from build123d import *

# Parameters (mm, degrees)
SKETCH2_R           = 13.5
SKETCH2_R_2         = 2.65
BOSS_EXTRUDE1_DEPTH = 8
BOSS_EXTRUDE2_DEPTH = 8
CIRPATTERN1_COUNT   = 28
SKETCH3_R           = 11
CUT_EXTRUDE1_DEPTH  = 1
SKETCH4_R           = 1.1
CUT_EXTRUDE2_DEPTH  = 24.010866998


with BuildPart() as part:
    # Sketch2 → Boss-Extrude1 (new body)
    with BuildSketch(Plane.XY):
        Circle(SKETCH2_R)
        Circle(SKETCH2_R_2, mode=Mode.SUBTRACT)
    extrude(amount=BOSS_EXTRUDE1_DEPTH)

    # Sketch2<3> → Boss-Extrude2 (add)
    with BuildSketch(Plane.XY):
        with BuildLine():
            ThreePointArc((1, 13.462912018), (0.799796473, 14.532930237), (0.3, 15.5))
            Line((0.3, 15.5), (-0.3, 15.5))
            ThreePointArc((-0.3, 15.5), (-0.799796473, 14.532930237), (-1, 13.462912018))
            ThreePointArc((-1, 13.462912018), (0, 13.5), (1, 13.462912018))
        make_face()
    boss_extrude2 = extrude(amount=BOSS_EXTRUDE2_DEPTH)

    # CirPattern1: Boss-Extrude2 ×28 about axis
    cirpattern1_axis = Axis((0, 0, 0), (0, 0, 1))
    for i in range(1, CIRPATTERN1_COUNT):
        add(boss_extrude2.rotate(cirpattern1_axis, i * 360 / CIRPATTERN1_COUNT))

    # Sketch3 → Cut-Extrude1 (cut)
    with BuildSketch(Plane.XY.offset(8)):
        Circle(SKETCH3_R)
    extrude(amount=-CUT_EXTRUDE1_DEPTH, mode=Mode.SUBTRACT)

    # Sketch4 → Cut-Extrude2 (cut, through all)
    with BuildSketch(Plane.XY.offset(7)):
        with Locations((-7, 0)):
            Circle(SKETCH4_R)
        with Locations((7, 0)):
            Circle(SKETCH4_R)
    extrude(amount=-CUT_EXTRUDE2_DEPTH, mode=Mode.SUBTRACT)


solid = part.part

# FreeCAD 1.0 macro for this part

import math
import FreeCAD as App
import Part
import Sketcher
from FreeCAD import Vector

doc = App.newDocument("Part")
params = doc.addObject("Spreadsheet::Sheet", "Params")
for row, (alias, value) in enumerate([
    ("sketch1_diameter", "27 mm"),
    ("sketch1_diameter2", "5.3 mm"),
    ("pad1_length", "8 mm"),
    ("sketch2_radius", "13.5 mm"),
    ("sketch2_width", "0.6 mm"),
    ("pad2_length", "8 mm"),
    ("sketch3_diameter", "22 mm"),
    ("pocket1_length", "1 mm"),
    ("sketch4_diameter", "2.2 mm"),
], start=1):
    params.set(f"A{row}", alias)
    params.set(f"B{row}", "=" + value)
    params.setAlias(f"B{row}", alias)

body = doc.addObject("PartDesign::Body", "Body")

# Sketch on XY plane
sketch1 = doc.addObject("Sketcher::SketchObject", "Sketch")
body.addObject(sketch1)
sketch1.AttachmentSupport = (doc.XY_Plane, [""])
sketch1.MapMode = "FlatFace"
sketch1.addGeometry([
    Part.Circle(Vector(0, 0, 0), Vector(0, 0, 1), 13.5),
    Part.Circle(Vector(0, 0, 0), Vector(0, 0, 1), 2.65),
], False)
sketch1.addConstraint([
    Sketcher.Constraint("Coincident", 0, 3, -1, 1),
    Sketcher.Constraint("Coincident", 1, 3, -1, 1),
    Sketcher.Constraint("Diameter", 0, 27.0),
    Sketcher.Constraint("Diameter", 1, 5.3),
])
sketch1.setExpression("Constraints[2]", "Params.sketch1_diameter")
sketch1.setExpression("Constraints[3]", "Params.sketch1_diameter2")
pad1 = doc.addObject("PartDesign::Pad", "Pad")
body.addObject(pad1)
pad1.Profile = sketch1
pad1.setExpression("Length", "Params.pad1_length")

# Sketch on XY plane
sketch2 = doc.addObject("Sketcher::SketchObject", "Sketch001")
body.addObject(sketch2)
sketch2.AttachmentSupport = (doc.XY_Plane, [""])
sketch2.MapMode = "FlatFace"
sketch2.addGeometry([
    Part.ArcOfCircle(Part.Circle(Vector(-2.737906, 13.317277, 0), Vector(0, 0, 1), 3.740742), math.radians(2.231206), math.radians(35.697083)),
    Part.LineSegment(Vector(0.3, 15.5, 0), Vector(-0.3, 15.5, 0)),
    Part.ArcOfCircle(Part.Circle(Vector(2.737906, 13.317277, 0), Vector(0, 0, 1), 3.740742), math.radians(144.302917), math.radians(177.768794)),
    Part.ArcOfCircle(Part.Circle(Vector(0, 0, 0), Vector(0, 0, 1), 13.5), math.radians(85.751977), math.radians(94.248023)),
], False)
sketch2.addConstraint([
    Sketcher.Constraint("Coincident", 0, 2, 1, 1),
    Sketcher.Constraint("Coincident", 1, 2, 2, 1),
    Sketcher.Constraint("Coincident", 2, 2, 3, 2),
    Sketcher.Constraint("Coincident", 3, 1, 0, 1),
    Sketcher.Constraint("Horizontal", 1),
    Sketcher.Constraint("Coincident", 3, 3, -1, 1),
    Sketcher.Constraint("Equal", 0, 2),
    Sketcher.Constraint("Symmetric", 0, 3, 2, 3, -2),
    Sketcher.Constraint("Radius", 3, 13.5),
    Sketcher.Constraint("DistanceX", 1, 2, 1, 1, 0.6),
    Sketcher.Constraint("DistanceX", 2, 2, -1, 1, 1.0),
    Sketcher.Constraint("DistanceY", -1, 1, 0, 2, 15.5),
    Sketcher.Constraint("Radius", 0, 3.740742),
])
sketch2.setExpression("Constraints[8]", "Params.sketch2_radius")
sketch2.setExpression("Constraints[9]", "Params.sketch2_width")
pad2 = doc.addObject("PartDesign::Pad", "Pad001")
body.addObject(pad2)
pad2.Profile = sketch2
pad2.setExpression("Length", "Params.pad2_length")
doc.recompute()

polarpattern = doc.addObject("PartDesign::PolarPattern", "PolarPattern")
body.addObject(polarpattern)
polarpattern.Originals = [pad2]
polarpattern.Axis = (doc.Z_Axis, [""])
polarpattern.Angle = 360
polarpattern.Occurrences = 28
body.Tip = polarpattern

# Sketch on XY plane
sketch3 = doc.addObject("Sketcher::SketchObject", "Sketch002")
body.addObject(sketch3)
sketch3.AttachmentSupport = (doc.XY_Plane, [""])
sketch3.MapMode = "FlatFace"
sketch3.AttachmentOffset = App.Placement(Vector(0, 0, 8), App.Rotation())
sketch3.addGeometry(Part.Circle(Vector(0, 0, 0), Vector(0, 0, 1), 11), False)
sketch3.addConstraint([
    Sketcher.Constraint("Coincident", 0, 3, -1, 1),
    Sketcher.Constraint("Diameter", 0, 22.0),
])
sketch3.setExpression("Constraints[1]", "Params.sketch3_diameter")
pocket1 = doc.addObject("PartDesign::Pocket", "Pocket")
body.addObject(pocket1)
pocket1.Profile = sketch3
pocket1.setExpression("Length", "Params.pocket1_length")

# Sketch on XY plane
sketch4 = doc.addObject("Sketcher::SketchObject", "Sketch003")
body.addObject(sketch4)
sketch4.AttachmentSupport = (doc.XY_Plane, [""])
sketch4.MapMode = "FlatFace"
sketch4.AttachmentOffset = App.Placement(Vector(0, 0, 7), App.Rotation())
sketch4.addGeometry([
    Part.Circle(Vector(-7, 0, 0), Vector(0, 0, 1), 1.1),
    Part.Circle(Vector(7, 0, 0), Vector(0, 0, 1), 1.1),
], False)
sketch4.addConstraint([
    Sketcher.Constraint("Equal", 0, 1),
    Sketcher.Constraint("Symmetric", 0, 3, 1, 3, -1, 1),
    Sketcher.Constraint("PointOnObject", 0, 3, -1),
    Sketcher.Constraint("Diameter", 0, 2.2),
    Sketcher.Constraint("DistanceX", 0, 3, -1, 1, 7.0),
])
sketch4.setExpression("Constraints[3]", "Params.sketch4_diameter")
pocket2 = doc.addObject("PartDesign::Pocket", "Pocket001")
body.addObject(pocket2)
pocket2.Profile = sketch4
pocket2.Type = "ThroughAll"

doc.recompute()
